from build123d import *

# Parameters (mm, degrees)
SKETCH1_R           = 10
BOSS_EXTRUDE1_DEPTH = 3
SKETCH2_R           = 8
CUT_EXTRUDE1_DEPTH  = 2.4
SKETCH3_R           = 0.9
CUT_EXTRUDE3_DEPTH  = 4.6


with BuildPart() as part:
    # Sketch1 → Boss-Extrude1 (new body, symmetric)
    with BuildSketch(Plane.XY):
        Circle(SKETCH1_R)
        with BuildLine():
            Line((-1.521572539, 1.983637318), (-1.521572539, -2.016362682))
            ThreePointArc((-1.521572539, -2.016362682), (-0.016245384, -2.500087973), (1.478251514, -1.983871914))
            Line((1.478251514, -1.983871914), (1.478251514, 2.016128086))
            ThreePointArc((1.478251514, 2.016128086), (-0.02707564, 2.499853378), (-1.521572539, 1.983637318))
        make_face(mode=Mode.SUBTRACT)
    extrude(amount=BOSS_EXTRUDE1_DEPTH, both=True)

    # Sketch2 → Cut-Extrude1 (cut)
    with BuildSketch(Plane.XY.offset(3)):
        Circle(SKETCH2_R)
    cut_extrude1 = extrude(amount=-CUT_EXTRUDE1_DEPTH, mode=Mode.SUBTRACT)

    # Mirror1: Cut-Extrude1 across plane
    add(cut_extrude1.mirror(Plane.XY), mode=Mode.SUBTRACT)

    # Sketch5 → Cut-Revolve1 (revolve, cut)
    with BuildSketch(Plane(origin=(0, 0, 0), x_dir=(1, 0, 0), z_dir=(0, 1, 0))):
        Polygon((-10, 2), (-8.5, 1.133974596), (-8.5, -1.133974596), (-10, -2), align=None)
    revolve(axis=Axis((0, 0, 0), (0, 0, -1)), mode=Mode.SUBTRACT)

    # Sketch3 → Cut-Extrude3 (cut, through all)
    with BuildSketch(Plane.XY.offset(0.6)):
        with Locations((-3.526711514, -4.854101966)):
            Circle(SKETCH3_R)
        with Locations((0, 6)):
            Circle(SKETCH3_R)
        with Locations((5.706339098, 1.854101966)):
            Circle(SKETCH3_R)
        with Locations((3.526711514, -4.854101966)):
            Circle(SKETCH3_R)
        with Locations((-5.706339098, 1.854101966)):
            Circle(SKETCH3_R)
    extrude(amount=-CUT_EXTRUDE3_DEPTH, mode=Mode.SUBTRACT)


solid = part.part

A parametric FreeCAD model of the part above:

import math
import FreeCAD as App
import Part
import Sketcher

V = App.Vector
Q = App.Units.Quantity

doc = App.newDocument("Part")
body = doc.addObject("PartDesign::Body", "Body")

sketch1 = body.newObject("Sketcher::SketchObject", "Sketch")
sketch1.AttachmentSupport = (doc.getObject("XY_Plane"), [""])
sketch1.MapMode = "FlatFace"
sketch1.addGeometry([
    Part.Circle(V(0, 0, 0), V(0, 0, 1), 10),
    Part.LineSegment(V(-1.521573, -2.016363, 0), V(-1.521573, 1.983637, 0)),
    Part.ArcOfCircle(Part.Circle(V(0, 0, 0), V(0, 0, 1), 2.5), math.radians(53.750642), math.radians(127.490438)),
    Part.LineSegment(V(1.478252, 2.016128, 0), V(1.478252, -1.983872, 0)),
    Part.ArcOfCircle(Part.Circle(V(-0.043321, -0.000235, 0), V(0, 0, 1), 2.5), math.radians(-126.249358), math.radians(-52.509562)),
], False)
sketch1.addConstraint([
    Sketcher.Constraint("Coincident", 1, 2, 2, 2),
    Sketcher.Constraint("Coincident", 2, 1, 3, 1),
    Sketcher.Constraint("Coincident", 3, 2, 4, 2),
    Sketcher.Constraint("Coincident", 4, 1, 1, 1),
    Sketcher.Constraint("Vertical", 1),
    Sketcher.Constraint("Vertical", 3),
    Sketcher.Constraint("Coincident", 0, 3, -1, 1),
    Sketcher.Constraint("Coincident", 2, 3, -1, 1),
    Sketcher.Constraint("Equal", 2, 4),
    Sketcher.Constraint("Equal", 1, 3),
    Sketcher.Constraint("Diameter", 0, 20.0),
    Sketcher.Constraint("Radius", 2, 2.5),
    Sketcher.Constraint("DistanceY", 1, 1, 1, 2, 4.0),
    Sketcher.Constraint("DistanceX", 4, 3, -1, 1, 0.043321),
    Sketcher.Constraint("DistanceX", -1, 1, 2, 1, 1.478252),
])
pad1 = body.newObject("PartDesign::Pad", "Pad")
pad1.Profile = sketch1
pad1.Length = 6
pad1.Midplane = True

sketch2 = body.newObject("Sketcher::SketchObject", "Sketch001")
sketch2.AttachmentSupport = (doc.getObject("XY_Plane"), [""])
sketch2.MapMode = "FlatFace"
sketch2.AttachmentOffset = App.Placement(V(0, 0, 3), App.Rotation())
sketch2.addGeometry(Part.Circle(V(0, 0, 0), V(0, 0, 1), 8), False)
sketch2.addConstraint([
    Sketcher.Constraint("Coincident", 0, 3, -1, 1),
    Sketcher.Constraint("Diameter", 0, 16.0),
])
pocket1 = body.newObject("PartDesign::Pocket", "Pocket")
pocket1.Profile = sketch2
pocket1.Length = 2.4
doc.recompute()

mirrored = body.newObject("PartDesign::Mirrored", "Mirrored")
mirrored.Originals = [pocket1]
mirrored.MirrorPlane = (doc.getObject("XY_Plane"), [""])
body.Tip = mirrored

sketch3 = body.newObject("Sketcher::SketchObject", "Sketch002")
sketch3.AttachmentSupport = (doc.getObject("XZ_Plane"), [""])
sketch3.MapMode = "FlatFace"
sketch3.addGeometry([
    Part.LineSegment(V(-8.5, -1.133975, 0), V(-10, -2, 0)),
    Part.LineSegment(V(-10, -2, 0), V(-10, 2, 0)),
    Part.LineSegment(V(-10, 2, 0), V(-8.5, 1.133975, 0)),
    Part.LineSegment(V(-8.5, 1.133975, 0), V(-8.5, -1.133975, 0)),
], False)
sketch3.addConstraint([
    Sketcher.Constraint("Coincident", 0, 2, 1, 1),
    Sketcher.Constraint("Coincident", 1, 2, 2, 1),
    Sketcher.Constraint("Coincident", 2, 2, 3, 1),
    Sketcher.Constraint("Coincident", 3, 2, 0, 1),
    Sketcher.Constraint("Vertical", 1),
    Sketcher.Constraint("Vertical", 3),
    Sketcher.Constraint("Equal", 0, 2),
    Sketcher.Constraint("DistanceY", 1, 1, 1, 2, 4.0),
    Sketcher.Constraint("Angle", 0, Q("-150 deg")),
    Sketcher.Constraint("DistanceX", 0, 2, -1, 1, 10.0),
    Sketcher.Constraint("DistanceY", 0, 2, -1, 1, 2.0),
    Sketcher.Constraint("DistanceX", 2, 2, -1, 1, 8.5),
])
groove = body.newObject("PartDesign::Groove", "Groove")
groove.Profile = sketch3
groove.ReferenceAxis = (sketch3, ["V_Axis"])
groove.Angle = 360

sketch4 = body.newObject("Sketcher::SketchObject", "Sketch003")
sketch4.AttachmentSupport = (doc.getObject("XY_Plane"), [""])
sketch4.MapMode = "FlatFace"
sketch4.AttachmentOffset = App.Placement(V(0, 0, 0.6), App.Rotation())
sketch4.addGeometry([
    Part.Circle(V(-3.526712, -4.854102, 0), V(0, 0, 1), 0.9),
    Part.Circle(V(0, 6, 0), V(0, 0, 1), 0.9),
    Part.Circle(V(5.706339, 1.854102, 0), V(0, 0, 1), 0.9),
    Part.Circle(V(3.526712, -4.854102, 0), V(0, 0, 1), 0.9),
    Part.Circle(V(-5.706339, 1.854102, 0), V(0, 0, 1), 0.9),
], False)
sketch4.addConstraint([
    Sketcher.Constraint("Equal", 0, 1),
    Sketcher.Constraint("Equal", 1, 2),
    Sketcher.Constraint("Equal", 2, 3),
    Sketcher.Constraint("Equal", 3, 4),
    Sketcher.Constraint("Symmetric", 0, 3, 3, 3, -2),
    Sketcher.Constraint("Symmetric", 2, 3, 4, 3, -2),
    Sketcher.Constraint("PointOnObject", 1, 3, -2),
    Sketcher.Constraint("Diameter", 0, 1.8),
    Sketcher.Constraint("DistanceY", -1, 1, 1, 3, 6.0),
    Sketcher.Constraint("DistanceY", 0, 3, -1, 1, 4.854102),
    Sketcher.Constraint("DistanceY", -1, 1, 2, 3, 1.854102),
    Sketcher.Constraint("DistanceX", 0, 3, -1, 1, 3.526712),
    Sketcher.Constraint("DistanceX", -1, 1, 2, 3, 5.706339),
])
pocket2 = body.newObject("PartDesign::Pocket", "Pocket001")
pocket2.Profile = sketch4
pocket2.Type = "ThroughAll"

doc.recompute()
